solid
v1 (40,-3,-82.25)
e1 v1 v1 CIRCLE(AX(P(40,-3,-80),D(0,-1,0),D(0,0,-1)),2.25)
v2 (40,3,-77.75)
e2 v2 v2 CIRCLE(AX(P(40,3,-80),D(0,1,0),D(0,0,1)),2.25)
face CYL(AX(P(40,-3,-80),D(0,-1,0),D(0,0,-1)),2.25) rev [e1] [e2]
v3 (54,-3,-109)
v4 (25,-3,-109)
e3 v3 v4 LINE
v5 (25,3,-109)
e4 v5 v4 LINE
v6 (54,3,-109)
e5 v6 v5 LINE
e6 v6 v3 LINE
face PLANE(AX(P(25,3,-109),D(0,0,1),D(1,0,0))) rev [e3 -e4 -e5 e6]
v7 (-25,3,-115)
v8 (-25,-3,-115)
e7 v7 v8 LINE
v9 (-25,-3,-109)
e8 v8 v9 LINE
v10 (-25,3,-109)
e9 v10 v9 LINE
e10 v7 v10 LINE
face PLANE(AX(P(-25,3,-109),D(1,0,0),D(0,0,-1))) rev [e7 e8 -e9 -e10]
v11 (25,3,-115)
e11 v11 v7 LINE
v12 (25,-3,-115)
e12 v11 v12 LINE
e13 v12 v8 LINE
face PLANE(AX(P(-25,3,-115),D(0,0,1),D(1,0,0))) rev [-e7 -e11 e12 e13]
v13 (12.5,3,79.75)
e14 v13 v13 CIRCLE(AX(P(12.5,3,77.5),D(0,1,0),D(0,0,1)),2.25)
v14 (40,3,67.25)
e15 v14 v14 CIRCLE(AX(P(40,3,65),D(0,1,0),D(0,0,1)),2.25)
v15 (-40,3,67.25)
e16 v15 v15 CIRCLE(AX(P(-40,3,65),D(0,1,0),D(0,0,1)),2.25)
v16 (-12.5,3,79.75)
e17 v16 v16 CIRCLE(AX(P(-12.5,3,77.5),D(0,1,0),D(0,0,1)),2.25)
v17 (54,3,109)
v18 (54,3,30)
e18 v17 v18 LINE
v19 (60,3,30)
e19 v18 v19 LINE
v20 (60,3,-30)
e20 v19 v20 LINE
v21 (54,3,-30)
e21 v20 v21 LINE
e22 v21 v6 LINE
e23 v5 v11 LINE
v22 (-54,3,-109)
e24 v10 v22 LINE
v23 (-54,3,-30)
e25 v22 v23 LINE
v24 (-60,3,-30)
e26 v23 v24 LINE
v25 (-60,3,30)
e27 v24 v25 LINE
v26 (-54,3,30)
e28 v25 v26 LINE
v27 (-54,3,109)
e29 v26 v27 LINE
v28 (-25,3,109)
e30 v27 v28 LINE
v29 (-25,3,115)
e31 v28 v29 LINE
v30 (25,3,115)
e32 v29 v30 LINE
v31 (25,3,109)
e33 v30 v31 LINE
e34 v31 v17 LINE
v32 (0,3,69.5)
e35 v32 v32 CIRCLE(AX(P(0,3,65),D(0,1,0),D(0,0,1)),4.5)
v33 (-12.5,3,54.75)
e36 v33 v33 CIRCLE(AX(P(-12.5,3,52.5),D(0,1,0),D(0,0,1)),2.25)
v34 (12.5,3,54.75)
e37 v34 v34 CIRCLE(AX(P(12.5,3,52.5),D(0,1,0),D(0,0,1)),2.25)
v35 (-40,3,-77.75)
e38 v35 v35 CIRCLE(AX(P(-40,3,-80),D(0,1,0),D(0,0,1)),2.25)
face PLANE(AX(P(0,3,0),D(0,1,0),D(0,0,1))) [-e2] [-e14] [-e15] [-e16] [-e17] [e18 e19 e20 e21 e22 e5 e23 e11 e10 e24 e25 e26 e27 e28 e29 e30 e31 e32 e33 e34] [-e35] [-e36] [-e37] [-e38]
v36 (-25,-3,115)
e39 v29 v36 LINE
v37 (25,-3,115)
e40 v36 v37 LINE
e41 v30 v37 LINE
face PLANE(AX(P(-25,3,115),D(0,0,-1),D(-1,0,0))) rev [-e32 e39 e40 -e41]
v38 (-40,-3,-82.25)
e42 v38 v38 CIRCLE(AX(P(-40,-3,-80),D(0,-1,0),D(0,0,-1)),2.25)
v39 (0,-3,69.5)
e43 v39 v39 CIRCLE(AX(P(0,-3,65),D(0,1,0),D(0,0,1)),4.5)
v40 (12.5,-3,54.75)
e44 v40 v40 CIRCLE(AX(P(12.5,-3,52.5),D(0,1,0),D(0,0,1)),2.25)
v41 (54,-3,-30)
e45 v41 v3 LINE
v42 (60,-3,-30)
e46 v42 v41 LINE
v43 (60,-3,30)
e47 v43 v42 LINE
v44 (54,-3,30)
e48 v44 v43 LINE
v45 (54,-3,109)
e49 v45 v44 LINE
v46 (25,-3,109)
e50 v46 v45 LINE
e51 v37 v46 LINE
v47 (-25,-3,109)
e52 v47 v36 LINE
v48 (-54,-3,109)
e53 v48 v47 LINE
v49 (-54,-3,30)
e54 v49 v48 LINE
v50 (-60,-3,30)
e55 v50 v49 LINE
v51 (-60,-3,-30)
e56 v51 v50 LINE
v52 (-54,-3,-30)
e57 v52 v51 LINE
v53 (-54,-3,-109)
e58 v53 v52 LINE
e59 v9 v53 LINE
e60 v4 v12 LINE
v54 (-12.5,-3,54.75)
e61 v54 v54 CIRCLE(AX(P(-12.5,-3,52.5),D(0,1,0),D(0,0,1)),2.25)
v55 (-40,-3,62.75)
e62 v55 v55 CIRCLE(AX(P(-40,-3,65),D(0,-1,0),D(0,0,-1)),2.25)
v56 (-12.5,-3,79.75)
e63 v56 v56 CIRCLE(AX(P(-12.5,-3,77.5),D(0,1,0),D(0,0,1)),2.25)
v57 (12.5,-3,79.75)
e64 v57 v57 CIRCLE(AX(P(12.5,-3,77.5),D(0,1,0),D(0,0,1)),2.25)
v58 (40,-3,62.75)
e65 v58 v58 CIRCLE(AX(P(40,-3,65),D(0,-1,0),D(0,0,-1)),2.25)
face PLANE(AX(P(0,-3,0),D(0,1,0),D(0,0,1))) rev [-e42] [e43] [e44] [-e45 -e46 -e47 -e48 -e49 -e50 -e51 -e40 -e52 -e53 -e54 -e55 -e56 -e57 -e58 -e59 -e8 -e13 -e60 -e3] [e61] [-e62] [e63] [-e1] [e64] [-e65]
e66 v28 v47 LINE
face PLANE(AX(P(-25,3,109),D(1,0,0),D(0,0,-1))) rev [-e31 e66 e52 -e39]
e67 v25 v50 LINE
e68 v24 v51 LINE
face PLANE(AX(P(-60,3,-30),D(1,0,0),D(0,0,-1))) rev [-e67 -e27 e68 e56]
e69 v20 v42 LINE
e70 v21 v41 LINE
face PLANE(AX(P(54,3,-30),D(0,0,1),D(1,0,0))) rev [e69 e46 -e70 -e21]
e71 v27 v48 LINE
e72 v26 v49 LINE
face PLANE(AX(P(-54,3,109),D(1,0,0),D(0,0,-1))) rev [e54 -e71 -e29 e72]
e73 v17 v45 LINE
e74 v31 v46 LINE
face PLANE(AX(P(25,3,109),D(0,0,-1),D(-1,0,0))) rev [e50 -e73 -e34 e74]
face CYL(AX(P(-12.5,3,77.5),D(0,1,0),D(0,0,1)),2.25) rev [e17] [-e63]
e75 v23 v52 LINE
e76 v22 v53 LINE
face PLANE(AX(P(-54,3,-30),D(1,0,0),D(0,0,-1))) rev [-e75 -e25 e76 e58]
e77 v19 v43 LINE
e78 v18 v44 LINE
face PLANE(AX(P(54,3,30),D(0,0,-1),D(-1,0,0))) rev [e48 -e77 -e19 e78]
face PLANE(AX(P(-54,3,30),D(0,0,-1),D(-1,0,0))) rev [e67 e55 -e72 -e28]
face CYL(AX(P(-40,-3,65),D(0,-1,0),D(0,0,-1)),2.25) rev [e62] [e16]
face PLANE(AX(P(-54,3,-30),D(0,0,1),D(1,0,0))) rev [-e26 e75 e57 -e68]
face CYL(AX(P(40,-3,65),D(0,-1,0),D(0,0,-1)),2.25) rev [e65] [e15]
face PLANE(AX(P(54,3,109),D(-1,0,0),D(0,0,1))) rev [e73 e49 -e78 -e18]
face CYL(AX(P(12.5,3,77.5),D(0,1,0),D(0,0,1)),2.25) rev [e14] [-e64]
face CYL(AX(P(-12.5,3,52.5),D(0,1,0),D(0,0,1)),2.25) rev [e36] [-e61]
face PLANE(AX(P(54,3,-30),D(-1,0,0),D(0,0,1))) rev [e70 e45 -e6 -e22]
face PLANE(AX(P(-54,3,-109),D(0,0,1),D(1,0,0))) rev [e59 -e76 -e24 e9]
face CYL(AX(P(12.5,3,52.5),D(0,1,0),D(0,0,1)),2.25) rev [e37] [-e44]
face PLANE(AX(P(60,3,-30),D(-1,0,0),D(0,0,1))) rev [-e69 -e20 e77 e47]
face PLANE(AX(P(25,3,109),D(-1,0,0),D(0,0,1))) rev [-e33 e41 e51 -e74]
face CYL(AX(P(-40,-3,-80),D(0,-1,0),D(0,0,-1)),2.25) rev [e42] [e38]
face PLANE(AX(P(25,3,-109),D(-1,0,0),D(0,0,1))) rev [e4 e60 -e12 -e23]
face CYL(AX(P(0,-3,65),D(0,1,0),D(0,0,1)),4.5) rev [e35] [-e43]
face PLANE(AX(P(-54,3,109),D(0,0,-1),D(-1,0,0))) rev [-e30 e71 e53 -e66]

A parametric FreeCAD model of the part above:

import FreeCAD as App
import Part
import Sketcher

V = App.Vector


def add_polygon(sketch, points):
    """Adds a closed chain of lines whose ends are joined by coincident constraints."""
    first, n = sketch.GeometryCount, len(points)
    for a, b in zip(points, points[1:] + points[:1]):
        sketch.addGeometry(Part.LineSegment(App.Vector(*a, 0), App.Vector(*b, 0)), False)
    for i in range(n):
        sketch.addConstraint(Sketcher.Constraint("Coincident", first + i, 2, first + (i + 1) % n, 1))

doc = App.newDocument("Part")
body = doc.addObject("PartDesign::Body", "Body")

sketch1 = body.newObject("Sketcher::SketchObject", "Sketch")
sketch1.AttachmentSupport = (doc.getObject("XZ_Plane"), [""])
sketch1.MapMode = "FlatFace"
add_polygon(sketch1, [(-54, 109), (-25, 109), (-25, 115), (25, 115), (25, 109), (54, 109), (54, 30), (60, 30), (60, -30), (54, -30), (54, -109), (25, -109), (25, -115), (-25, -115), (-25, -109), (-54, -109), (-54, -30), (-60, -30), (-60, 30), (-54, 30)])
sketch1.addConstraint([
    Sketcher.Constraint("Horizontal", 0),
    Sketcher.Constraint("Vertical", 1),
    Sketcher.Constraint("Horizontal", 2),
    Sketcher.Constraint("Vertical", 3),
    Sketcher.Constraint("Horizontal", 4),
    Sketcher.Constraint("Vertical", 5),
    Sketcher.Constraint("Horizontal", 6),
    Sketcher.Constraint("Vertical", 7),
    Sketcher.Constraint("Horizontal", 8),
    Sketcher.Constraint("Vertical", 9),
    Sketcher.Constraint("Horizontal", 10),
    Sketcher.Constraint("Vertical", 11),
    Sketcher.Constraint("Horizontal", 12),
    Sketcher.Constraint("Vertical", 13),
    Sketcher.Constraint("Horizontal", 14),
    Sketcher.Constraint("Vertical", 15),
    Sketcher.Constraint("Horizontal", 16),
    Sketcher.Constraint("Vertical", 17),
    Sketcher.Constraint("Horizontal", 18),
    Sketcher.Constraint("Vertical", 19),
    Sketcher.Constraint("Symmetric", 0, 2, 10, 2, -1, 1),
    Sketcher.Constraint("Symmetric", 2, 2, 12, 2, -1, 1),
    Sketcher.Constraint("Symmetric", 4, 2, 14, 2, -1, 1),
    Sketcher.Constraint("Symmetric", 6, 2, 16, 2, -1, 1),
    Sketcher.Constraint("Symmetric", 8, 2, 18, 2, -1, 1),
    Sketcher.Constraint("Symmetric", 0, 2, 3, 2, -2),
    Sketcher.Constraint("Symmetric", 8, 2, 15, 2, -2),
    Sketcher.Constraint("Equal", 18, 1),
    Sketcher.Constraint("DistanceX", 0, 1, 0, 2, 29.0),
    Sketcher.Constraint("DistanceX", 2, 1, 2, 2, 50.0),
    Sketcher.Constraint("DistanceX", 6, 1, 6, 2, 6.0),
    Sketcher.Constraint("DistanceY", 5, 2, 5, 1, 79.0),
    Sketcher.Constraint("DistanceY", 7, 2, 7, 1, 60.0),
])
pad1 = body.newObject("PartDesign::Pad", "Pad")
pad1.Profile = sketch1
pad1.Length = 6
pad1.Midplane = True

sketch2 = body.newObject("Sketcher::SketchObject", "Sketch001")
sketch2.AttachmentSupport = (doc.getObject("XZ_Plane"), [""])
sketch2.MapMode = "FlatFace"
sketch2.addGeometry(Part.Circle(V(0, 65, 0), V(0, 0, 1), 4.5), False)
sketch2.addConstraint([
    Sketcher.Constraint("PointOnObject", 0, 3, -2),
    Sketcher.Constraint("Diameter", 0, 9.0),
    Sketcher.Constraint("DistanceY", -1, 1, 0, 3, 65.0),
])
pocket1 = body.newObject("PartDesign::Pocket", "Pocket")
pocket1.Profile = sketch2
pocket1.Type = "ThroughAll"
pocket1.Midplane = True

sketch3 = body.newObject("Sketcher::SketchObject", "Sketch002")
sketch3.AttachmentSupport = (doc.getObject("XZ_Plane"), [""])
sketch3.MapMode = "FlatFace"
sketch3.AttachmentOffset = App.Placement(V(0, 0, -3), App.Rotation())
sketch3.addGeometry([
    Part.Circle(V(12.5, 77.5, 0), V(0, 0, 1), 2.2),
    Part.Circle(V(-12.5, 77.5, 0), V(0, 0, 1), 2.2),
    Part.Circle(V(12.5, 52.5, 0), V(0, 0, 1), 2.2),
    Part.Circle(V(-12.5, 52.5, 0), V(0, 0, 1), 2.2),
], False)
sketch3.addConstraint([
    Sketcher.Constraint("Equal", 0, 1),
    Sketcher.Constraint("Equal", 1, 2),
    Sketcher.Constraint("Equal", 2, 3),
    Sketcher.Constraint("Symmetric", 0, 3, 1, 3, -2),
    Sketcher.Constraint("Symmetric", 2, 3, 3, 3, -2),
    Sketcher.Constraint("Vertical", 0, 3, 2, 3),
    Sketcher.Constraint("Diameter", 0, 4.5),
    Sketcher.Constraint("DistanceX", 1, 3, 0, 3, 25.0),
    Sketcher.Constraint("DistanceY", 2, 3, 0, 3, 25.0),
    Sketcher.Constraint("DistanceY", -1, 1, 0, 3, 77.5),
])
doc.recompute()
hole = body.newObject("PartDesign::Hole", "Hole")
hole.Profile = sketch3
hole.ThreadType = "None"
hole.Diameter = 4.5
hole.DepthType = "ThroughAll"
hole.Reversed = True

sketch4 = body.newObject("Sketcher::SketchObject", "Sketch003")
sketch4.AttachmentSupport = (doc.getObject("XZ_Plane"), [""])
sketch4.MapMode = "FlatFace"
sketch4.AttachmentOffset = App.Placement(V(0, 0, 3), App.Rotation())
sketch4.addGeometry([
    Part.Circle(V(-40, -80, 0), V(0, 0, 1), 2.2),
    Part.Circle(V(40, -80, 0), V(0, 0, 1), 2.2),
    Part.Circle(V(-40, 65, 0), V(0, 0, 1), 2.2),
    Part.Circle(V(40, 65, 0), V(0, 0, 1), 2.2),
], False)
sketch4.addConstraint([
    Sketcher.Constraint("Equal", 0, 1),
    Sketcher.Constraint("Equal", 1, 2),
    Sketcher.Constraint("Equal", 2, 3),
    Sketcher.Constraint("Symmetric", 0, 3, 1, 3, -2),
    Sketcher.Constraint("Symmetric", 2, 3, 3, 3, -2),
    Sketcher.Constraint("Vertical", 0, 3, 2, 3),
    Sketcher.Constraint("Diameter", 0, 4.5),
    Sketcher.Constraint("DistanceX", 0, 3, -1, 1, 40.0),
    Sketcher.Constraint("DistanceY", 0, 3, -1, 1, 80.0),
    Sketcher.Constraint("DistanceY", -1, 1, 2, 3, 65.0),
])
doc.recompute()
hole2 = body.newObject("PartDesign::Hole", "Hole001")
hole2.Profile = sketch4
hole2.ThreadType = "None"
hole2.Diameter = 4.5
hole2.DepthType = "ThroughAll"

doc.recompute()
